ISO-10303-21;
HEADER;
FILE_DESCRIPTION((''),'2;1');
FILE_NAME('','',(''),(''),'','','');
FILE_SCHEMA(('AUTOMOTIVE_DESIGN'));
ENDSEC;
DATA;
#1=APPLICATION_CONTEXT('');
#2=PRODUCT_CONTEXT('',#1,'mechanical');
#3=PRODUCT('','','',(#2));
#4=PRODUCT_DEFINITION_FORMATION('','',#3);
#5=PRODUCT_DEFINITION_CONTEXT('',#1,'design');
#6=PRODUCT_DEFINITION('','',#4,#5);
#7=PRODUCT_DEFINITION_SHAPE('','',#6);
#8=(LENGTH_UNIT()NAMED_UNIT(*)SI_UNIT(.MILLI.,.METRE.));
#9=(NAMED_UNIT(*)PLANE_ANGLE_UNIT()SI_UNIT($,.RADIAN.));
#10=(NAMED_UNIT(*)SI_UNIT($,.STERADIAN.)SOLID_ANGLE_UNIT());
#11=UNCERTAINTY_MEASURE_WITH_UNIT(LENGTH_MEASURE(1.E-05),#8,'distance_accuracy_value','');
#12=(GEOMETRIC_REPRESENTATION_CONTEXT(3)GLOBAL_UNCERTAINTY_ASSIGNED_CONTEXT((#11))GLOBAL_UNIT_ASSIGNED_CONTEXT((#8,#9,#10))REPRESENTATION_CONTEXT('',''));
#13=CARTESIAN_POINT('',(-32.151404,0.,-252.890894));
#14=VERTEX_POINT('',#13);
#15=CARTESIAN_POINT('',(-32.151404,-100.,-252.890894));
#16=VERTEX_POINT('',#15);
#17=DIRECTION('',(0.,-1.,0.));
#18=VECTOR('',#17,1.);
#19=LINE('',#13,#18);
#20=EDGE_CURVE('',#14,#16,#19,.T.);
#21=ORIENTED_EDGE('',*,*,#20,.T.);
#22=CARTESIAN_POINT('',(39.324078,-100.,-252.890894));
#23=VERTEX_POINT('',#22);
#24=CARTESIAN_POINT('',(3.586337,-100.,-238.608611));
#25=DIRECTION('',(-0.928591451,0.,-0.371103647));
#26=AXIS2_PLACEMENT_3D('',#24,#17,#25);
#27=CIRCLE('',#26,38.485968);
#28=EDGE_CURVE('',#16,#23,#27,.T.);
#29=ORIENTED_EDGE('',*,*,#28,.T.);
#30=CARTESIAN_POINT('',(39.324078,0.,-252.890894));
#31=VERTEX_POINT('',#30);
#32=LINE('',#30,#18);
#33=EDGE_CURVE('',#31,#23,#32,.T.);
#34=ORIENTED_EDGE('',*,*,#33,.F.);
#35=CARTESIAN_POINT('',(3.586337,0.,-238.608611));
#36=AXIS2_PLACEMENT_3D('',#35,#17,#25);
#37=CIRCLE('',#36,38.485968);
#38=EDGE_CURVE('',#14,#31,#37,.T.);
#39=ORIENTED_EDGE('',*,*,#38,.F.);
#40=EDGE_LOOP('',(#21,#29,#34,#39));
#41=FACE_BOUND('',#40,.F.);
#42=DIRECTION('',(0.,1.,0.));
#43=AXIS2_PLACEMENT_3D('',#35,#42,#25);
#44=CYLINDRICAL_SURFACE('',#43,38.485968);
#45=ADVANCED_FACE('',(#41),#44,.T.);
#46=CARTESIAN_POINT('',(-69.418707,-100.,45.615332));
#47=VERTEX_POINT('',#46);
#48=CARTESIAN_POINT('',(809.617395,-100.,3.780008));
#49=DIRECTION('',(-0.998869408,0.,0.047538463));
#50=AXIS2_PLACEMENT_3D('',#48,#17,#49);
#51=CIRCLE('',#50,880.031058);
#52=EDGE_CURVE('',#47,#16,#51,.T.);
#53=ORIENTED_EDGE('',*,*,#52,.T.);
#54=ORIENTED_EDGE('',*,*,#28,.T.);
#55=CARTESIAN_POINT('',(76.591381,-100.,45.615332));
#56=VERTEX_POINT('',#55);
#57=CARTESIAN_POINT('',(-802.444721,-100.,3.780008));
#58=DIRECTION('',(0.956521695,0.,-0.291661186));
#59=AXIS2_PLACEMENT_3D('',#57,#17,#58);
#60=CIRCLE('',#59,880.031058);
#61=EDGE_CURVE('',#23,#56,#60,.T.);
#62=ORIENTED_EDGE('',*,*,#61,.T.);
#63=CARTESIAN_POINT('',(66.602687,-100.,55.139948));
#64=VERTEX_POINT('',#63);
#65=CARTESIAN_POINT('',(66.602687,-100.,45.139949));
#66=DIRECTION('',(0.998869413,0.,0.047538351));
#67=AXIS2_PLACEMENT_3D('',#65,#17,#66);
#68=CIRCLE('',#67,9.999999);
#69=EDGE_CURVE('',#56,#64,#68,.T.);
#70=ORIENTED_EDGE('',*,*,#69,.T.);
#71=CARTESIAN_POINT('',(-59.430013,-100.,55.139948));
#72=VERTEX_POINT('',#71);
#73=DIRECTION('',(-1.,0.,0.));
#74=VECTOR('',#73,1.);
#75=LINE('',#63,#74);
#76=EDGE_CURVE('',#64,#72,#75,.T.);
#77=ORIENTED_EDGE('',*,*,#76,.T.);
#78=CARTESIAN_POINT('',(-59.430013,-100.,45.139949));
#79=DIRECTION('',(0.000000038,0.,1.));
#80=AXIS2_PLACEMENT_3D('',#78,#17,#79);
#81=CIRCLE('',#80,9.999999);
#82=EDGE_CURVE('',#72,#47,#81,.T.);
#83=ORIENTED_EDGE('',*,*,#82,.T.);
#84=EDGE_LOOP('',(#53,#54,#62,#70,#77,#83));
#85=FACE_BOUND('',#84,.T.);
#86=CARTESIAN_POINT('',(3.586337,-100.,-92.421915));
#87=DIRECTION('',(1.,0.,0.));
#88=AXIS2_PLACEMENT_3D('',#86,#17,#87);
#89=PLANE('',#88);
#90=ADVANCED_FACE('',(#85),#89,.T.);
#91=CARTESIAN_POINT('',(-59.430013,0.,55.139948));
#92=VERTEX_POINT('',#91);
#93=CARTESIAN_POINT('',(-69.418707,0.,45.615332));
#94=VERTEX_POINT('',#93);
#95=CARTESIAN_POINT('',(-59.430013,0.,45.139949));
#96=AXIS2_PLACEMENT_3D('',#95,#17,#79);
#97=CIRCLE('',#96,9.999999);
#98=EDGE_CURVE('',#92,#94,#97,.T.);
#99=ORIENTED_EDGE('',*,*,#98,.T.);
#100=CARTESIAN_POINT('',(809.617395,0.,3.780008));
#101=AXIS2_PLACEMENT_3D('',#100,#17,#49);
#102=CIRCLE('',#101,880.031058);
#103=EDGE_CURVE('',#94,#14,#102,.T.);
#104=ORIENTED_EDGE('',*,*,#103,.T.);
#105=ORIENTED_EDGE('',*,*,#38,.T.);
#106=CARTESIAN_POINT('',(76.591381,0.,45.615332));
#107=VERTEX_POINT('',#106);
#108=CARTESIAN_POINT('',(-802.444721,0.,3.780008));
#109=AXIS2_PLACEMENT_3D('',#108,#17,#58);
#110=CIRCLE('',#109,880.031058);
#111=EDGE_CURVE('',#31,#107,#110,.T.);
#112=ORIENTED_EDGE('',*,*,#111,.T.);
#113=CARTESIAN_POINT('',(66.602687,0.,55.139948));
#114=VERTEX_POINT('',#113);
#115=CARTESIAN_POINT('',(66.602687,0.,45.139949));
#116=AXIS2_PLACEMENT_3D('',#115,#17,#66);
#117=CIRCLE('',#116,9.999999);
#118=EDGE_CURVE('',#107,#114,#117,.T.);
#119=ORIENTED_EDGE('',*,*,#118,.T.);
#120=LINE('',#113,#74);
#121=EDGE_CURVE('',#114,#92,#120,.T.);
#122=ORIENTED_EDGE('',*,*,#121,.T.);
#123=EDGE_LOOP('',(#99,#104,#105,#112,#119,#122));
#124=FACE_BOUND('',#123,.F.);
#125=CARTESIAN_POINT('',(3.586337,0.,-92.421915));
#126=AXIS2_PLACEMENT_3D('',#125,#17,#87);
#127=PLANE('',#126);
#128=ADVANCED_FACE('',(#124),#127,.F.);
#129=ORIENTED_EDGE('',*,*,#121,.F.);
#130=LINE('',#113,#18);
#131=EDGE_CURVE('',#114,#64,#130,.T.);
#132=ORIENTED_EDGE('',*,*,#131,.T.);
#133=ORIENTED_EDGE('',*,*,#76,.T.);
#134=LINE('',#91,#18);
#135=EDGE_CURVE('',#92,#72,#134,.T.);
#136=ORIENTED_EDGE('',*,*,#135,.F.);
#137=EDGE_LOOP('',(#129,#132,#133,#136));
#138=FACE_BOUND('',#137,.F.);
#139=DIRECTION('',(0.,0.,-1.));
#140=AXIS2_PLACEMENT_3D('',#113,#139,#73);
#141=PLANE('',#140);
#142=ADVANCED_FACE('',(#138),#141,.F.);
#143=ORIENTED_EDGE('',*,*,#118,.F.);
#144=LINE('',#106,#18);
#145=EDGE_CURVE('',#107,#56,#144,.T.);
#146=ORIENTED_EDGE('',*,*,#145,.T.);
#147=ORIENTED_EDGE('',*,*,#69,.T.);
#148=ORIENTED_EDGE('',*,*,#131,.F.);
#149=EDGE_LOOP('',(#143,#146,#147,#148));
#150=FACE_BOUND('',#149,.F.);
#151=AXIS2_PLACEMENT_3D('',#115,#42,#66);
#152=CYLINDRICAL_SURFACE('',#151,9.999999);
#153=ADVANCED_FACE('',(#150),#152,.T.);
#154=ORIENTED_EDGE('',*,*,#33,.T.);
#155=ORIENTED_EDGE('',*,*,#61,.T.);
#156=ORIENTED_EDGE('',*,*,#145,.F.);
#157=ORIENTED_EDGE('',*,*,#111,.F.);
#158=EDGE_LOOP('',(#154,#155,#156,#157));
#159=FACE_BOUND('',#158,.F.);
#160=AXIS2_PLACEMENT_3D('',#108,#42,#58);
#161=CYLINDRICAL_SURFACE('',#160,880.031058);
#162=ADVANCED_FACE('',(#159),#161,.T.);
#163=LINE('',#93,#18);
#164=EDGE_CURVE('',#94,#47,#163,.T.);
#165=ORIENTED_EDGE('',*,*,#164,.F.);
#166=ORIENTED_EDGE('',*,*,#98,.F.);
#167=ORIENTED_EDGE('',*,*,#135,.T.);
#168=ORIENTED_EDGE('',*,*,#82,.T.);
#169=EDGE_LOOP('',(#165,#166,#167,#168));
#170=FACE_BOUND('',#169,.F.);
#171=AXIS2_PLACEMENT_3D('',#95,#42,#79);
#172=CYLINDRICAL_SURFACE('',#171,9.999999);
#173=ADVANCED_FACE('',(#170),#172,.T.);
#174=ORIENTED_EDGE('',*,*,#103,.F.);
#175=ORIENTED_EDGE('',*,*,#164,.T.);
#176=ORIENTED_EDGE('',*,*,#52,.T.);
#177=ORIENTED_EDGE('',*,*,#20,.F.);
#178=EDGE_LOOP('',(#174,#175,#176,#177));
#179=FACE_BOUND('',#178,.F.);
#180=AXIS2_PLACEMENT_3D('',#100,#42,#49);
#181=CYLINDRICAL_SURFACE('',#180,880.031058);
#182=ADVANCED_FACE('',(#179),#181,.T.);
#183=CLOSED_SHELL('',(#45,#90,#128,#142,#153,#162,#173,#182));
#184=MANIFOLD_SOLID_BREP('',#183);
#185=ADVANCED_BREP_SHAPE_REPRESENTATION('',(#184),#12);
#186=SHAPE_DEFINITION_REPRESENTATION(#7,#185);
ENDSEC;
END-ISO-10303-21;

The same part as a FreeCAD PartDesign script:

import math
import FreeCAD as App
import Part
import Sketcher

V = App.Vector
Q = App.Units.Quantity

doc = App.newDocument("Part")
body = doc.addObject("PartDesign::Body", "Body")

# Sketch on XZ plane
sketch1 = body.newObject("Sketcher::SketchObject", "Sketch")
sketch1.AttachmentSupport = (doc.getObject("XZ_Plane"), [""])
sketch1.MapMode = "FlatFace"
sketch1.addGeometry(Part.LineSegment(V(66.602687, 55.139948, 0), V(-59.430013, 55.139948, 0)), False)
sketch1.addGeometry(Part.ArcOfCircle(Part.Circle(V(-59.430013, 45.139949, 0), V(0, 0, 1), 9.999999), math.radians(89.999998), math.radians(177.275226)), False)
sketch1.addGeometry(Part.ArcOfCircle(Part.Circle(V(809.617395, 3.780008, 0), V(0, 0, 1), 880.031058), math.radians(177.27522), math.radians(196.957435)), False)
sketch1.addGeometry(Part.ArcOfCircle(Part.Circle(V(3.586337, -238.608611, 0), V(0, 0, 1), 38.485968), math.radians(-158.216302), math.radians(-21.783698)), False)
sketch1.addGeometry(Part.ArcOfCircle(Part.Circle(V(-802.444721, 3.780008, 0), V(0, 0, 1), 880.031058), math.radians(-16.957435), math.radians(2.72478)), False)
sketch1.addGeometry(Part.ArcOfCircle(Part.Circle(V(66.602687, 45.139949, 0), V(0, 0, 1), 9.999999), math.radians(2.724774), math.radians(90.000002)), False)
sketch1.addConstraint(Sketcher.Constraint("Tangent", 0, 2, 1, 1))
sketch1.addConstraint(Sketcher.Constraint("Tangent", 1, 2, 2, 1))
sketch1.addConstraint(Sketcher.Constraint("Coincident", 2, 2, 3, 1))
sketch1.addConstraint(Sketcher.Constraint("Coincident", 3, 2, 4, 1))
sketch1.addConstraint(Sketcher.Constraint("Tangent", 4, 2, 5, 1))
sketch1.addConstraint(Sketcher.Constraint("Tangent", 5, 2, 0, 1))
sketch1.addConstraint(Sketcher.Constraint("Horizontal", 0))
sketch1.addConstraint(Sketcher.Constraint("Equal", 2, 4))
sketch1.addConstraint(Sketcher.Constraint("Equal", 1, 5))
sketch1.addConstraint(Sketcher.Constraint("Horizontal", 2, 3, 4, 3))
sketch1.addConstraint(Sketcher.Constraint("Horizontal", 2, 2, 3, 2))
sketch1.addConstraint(Sketcher.Constraint("Radius", 1, Q("9.999999 mm")))
sketch1.addConstraint(Sketcher.Constraint("Radius", 3, Q("38.485968 mm")))
sketch1.addConstraint(Sketcher.Constraint("DistanceX", 0, 2, 0, 1, Q("126.0327 mm")))
sketch1.addConstraint(Sketcher.Constraint("Radius", 2, Q("880.031058 mm")))
sketch1.addConstraint(Sketcher.Constraint("DistanceY", -1, 1, 1, 3, Q("45.139949 mm")))
sketch1.addConstraint(Sketcher.Constraint("DistanceY", -1, 1, 2, 3, Q("3.780008 mm")))
sketch1.addConstraint(Sketcher.Constraint("DistanceY", 3, 3, -1, 1, Q("238.608611 mm")))
sketch1.addConstraint(Sketcher.Constraint("DistanceX", 4, 3, -1, 1, Q("802.444721 mm")))
pad1 = body.newObject("PartDesign::Pad", "Pad")
pad1.Profile = sketch1
pad1.Length = 100

doc.recompute()
